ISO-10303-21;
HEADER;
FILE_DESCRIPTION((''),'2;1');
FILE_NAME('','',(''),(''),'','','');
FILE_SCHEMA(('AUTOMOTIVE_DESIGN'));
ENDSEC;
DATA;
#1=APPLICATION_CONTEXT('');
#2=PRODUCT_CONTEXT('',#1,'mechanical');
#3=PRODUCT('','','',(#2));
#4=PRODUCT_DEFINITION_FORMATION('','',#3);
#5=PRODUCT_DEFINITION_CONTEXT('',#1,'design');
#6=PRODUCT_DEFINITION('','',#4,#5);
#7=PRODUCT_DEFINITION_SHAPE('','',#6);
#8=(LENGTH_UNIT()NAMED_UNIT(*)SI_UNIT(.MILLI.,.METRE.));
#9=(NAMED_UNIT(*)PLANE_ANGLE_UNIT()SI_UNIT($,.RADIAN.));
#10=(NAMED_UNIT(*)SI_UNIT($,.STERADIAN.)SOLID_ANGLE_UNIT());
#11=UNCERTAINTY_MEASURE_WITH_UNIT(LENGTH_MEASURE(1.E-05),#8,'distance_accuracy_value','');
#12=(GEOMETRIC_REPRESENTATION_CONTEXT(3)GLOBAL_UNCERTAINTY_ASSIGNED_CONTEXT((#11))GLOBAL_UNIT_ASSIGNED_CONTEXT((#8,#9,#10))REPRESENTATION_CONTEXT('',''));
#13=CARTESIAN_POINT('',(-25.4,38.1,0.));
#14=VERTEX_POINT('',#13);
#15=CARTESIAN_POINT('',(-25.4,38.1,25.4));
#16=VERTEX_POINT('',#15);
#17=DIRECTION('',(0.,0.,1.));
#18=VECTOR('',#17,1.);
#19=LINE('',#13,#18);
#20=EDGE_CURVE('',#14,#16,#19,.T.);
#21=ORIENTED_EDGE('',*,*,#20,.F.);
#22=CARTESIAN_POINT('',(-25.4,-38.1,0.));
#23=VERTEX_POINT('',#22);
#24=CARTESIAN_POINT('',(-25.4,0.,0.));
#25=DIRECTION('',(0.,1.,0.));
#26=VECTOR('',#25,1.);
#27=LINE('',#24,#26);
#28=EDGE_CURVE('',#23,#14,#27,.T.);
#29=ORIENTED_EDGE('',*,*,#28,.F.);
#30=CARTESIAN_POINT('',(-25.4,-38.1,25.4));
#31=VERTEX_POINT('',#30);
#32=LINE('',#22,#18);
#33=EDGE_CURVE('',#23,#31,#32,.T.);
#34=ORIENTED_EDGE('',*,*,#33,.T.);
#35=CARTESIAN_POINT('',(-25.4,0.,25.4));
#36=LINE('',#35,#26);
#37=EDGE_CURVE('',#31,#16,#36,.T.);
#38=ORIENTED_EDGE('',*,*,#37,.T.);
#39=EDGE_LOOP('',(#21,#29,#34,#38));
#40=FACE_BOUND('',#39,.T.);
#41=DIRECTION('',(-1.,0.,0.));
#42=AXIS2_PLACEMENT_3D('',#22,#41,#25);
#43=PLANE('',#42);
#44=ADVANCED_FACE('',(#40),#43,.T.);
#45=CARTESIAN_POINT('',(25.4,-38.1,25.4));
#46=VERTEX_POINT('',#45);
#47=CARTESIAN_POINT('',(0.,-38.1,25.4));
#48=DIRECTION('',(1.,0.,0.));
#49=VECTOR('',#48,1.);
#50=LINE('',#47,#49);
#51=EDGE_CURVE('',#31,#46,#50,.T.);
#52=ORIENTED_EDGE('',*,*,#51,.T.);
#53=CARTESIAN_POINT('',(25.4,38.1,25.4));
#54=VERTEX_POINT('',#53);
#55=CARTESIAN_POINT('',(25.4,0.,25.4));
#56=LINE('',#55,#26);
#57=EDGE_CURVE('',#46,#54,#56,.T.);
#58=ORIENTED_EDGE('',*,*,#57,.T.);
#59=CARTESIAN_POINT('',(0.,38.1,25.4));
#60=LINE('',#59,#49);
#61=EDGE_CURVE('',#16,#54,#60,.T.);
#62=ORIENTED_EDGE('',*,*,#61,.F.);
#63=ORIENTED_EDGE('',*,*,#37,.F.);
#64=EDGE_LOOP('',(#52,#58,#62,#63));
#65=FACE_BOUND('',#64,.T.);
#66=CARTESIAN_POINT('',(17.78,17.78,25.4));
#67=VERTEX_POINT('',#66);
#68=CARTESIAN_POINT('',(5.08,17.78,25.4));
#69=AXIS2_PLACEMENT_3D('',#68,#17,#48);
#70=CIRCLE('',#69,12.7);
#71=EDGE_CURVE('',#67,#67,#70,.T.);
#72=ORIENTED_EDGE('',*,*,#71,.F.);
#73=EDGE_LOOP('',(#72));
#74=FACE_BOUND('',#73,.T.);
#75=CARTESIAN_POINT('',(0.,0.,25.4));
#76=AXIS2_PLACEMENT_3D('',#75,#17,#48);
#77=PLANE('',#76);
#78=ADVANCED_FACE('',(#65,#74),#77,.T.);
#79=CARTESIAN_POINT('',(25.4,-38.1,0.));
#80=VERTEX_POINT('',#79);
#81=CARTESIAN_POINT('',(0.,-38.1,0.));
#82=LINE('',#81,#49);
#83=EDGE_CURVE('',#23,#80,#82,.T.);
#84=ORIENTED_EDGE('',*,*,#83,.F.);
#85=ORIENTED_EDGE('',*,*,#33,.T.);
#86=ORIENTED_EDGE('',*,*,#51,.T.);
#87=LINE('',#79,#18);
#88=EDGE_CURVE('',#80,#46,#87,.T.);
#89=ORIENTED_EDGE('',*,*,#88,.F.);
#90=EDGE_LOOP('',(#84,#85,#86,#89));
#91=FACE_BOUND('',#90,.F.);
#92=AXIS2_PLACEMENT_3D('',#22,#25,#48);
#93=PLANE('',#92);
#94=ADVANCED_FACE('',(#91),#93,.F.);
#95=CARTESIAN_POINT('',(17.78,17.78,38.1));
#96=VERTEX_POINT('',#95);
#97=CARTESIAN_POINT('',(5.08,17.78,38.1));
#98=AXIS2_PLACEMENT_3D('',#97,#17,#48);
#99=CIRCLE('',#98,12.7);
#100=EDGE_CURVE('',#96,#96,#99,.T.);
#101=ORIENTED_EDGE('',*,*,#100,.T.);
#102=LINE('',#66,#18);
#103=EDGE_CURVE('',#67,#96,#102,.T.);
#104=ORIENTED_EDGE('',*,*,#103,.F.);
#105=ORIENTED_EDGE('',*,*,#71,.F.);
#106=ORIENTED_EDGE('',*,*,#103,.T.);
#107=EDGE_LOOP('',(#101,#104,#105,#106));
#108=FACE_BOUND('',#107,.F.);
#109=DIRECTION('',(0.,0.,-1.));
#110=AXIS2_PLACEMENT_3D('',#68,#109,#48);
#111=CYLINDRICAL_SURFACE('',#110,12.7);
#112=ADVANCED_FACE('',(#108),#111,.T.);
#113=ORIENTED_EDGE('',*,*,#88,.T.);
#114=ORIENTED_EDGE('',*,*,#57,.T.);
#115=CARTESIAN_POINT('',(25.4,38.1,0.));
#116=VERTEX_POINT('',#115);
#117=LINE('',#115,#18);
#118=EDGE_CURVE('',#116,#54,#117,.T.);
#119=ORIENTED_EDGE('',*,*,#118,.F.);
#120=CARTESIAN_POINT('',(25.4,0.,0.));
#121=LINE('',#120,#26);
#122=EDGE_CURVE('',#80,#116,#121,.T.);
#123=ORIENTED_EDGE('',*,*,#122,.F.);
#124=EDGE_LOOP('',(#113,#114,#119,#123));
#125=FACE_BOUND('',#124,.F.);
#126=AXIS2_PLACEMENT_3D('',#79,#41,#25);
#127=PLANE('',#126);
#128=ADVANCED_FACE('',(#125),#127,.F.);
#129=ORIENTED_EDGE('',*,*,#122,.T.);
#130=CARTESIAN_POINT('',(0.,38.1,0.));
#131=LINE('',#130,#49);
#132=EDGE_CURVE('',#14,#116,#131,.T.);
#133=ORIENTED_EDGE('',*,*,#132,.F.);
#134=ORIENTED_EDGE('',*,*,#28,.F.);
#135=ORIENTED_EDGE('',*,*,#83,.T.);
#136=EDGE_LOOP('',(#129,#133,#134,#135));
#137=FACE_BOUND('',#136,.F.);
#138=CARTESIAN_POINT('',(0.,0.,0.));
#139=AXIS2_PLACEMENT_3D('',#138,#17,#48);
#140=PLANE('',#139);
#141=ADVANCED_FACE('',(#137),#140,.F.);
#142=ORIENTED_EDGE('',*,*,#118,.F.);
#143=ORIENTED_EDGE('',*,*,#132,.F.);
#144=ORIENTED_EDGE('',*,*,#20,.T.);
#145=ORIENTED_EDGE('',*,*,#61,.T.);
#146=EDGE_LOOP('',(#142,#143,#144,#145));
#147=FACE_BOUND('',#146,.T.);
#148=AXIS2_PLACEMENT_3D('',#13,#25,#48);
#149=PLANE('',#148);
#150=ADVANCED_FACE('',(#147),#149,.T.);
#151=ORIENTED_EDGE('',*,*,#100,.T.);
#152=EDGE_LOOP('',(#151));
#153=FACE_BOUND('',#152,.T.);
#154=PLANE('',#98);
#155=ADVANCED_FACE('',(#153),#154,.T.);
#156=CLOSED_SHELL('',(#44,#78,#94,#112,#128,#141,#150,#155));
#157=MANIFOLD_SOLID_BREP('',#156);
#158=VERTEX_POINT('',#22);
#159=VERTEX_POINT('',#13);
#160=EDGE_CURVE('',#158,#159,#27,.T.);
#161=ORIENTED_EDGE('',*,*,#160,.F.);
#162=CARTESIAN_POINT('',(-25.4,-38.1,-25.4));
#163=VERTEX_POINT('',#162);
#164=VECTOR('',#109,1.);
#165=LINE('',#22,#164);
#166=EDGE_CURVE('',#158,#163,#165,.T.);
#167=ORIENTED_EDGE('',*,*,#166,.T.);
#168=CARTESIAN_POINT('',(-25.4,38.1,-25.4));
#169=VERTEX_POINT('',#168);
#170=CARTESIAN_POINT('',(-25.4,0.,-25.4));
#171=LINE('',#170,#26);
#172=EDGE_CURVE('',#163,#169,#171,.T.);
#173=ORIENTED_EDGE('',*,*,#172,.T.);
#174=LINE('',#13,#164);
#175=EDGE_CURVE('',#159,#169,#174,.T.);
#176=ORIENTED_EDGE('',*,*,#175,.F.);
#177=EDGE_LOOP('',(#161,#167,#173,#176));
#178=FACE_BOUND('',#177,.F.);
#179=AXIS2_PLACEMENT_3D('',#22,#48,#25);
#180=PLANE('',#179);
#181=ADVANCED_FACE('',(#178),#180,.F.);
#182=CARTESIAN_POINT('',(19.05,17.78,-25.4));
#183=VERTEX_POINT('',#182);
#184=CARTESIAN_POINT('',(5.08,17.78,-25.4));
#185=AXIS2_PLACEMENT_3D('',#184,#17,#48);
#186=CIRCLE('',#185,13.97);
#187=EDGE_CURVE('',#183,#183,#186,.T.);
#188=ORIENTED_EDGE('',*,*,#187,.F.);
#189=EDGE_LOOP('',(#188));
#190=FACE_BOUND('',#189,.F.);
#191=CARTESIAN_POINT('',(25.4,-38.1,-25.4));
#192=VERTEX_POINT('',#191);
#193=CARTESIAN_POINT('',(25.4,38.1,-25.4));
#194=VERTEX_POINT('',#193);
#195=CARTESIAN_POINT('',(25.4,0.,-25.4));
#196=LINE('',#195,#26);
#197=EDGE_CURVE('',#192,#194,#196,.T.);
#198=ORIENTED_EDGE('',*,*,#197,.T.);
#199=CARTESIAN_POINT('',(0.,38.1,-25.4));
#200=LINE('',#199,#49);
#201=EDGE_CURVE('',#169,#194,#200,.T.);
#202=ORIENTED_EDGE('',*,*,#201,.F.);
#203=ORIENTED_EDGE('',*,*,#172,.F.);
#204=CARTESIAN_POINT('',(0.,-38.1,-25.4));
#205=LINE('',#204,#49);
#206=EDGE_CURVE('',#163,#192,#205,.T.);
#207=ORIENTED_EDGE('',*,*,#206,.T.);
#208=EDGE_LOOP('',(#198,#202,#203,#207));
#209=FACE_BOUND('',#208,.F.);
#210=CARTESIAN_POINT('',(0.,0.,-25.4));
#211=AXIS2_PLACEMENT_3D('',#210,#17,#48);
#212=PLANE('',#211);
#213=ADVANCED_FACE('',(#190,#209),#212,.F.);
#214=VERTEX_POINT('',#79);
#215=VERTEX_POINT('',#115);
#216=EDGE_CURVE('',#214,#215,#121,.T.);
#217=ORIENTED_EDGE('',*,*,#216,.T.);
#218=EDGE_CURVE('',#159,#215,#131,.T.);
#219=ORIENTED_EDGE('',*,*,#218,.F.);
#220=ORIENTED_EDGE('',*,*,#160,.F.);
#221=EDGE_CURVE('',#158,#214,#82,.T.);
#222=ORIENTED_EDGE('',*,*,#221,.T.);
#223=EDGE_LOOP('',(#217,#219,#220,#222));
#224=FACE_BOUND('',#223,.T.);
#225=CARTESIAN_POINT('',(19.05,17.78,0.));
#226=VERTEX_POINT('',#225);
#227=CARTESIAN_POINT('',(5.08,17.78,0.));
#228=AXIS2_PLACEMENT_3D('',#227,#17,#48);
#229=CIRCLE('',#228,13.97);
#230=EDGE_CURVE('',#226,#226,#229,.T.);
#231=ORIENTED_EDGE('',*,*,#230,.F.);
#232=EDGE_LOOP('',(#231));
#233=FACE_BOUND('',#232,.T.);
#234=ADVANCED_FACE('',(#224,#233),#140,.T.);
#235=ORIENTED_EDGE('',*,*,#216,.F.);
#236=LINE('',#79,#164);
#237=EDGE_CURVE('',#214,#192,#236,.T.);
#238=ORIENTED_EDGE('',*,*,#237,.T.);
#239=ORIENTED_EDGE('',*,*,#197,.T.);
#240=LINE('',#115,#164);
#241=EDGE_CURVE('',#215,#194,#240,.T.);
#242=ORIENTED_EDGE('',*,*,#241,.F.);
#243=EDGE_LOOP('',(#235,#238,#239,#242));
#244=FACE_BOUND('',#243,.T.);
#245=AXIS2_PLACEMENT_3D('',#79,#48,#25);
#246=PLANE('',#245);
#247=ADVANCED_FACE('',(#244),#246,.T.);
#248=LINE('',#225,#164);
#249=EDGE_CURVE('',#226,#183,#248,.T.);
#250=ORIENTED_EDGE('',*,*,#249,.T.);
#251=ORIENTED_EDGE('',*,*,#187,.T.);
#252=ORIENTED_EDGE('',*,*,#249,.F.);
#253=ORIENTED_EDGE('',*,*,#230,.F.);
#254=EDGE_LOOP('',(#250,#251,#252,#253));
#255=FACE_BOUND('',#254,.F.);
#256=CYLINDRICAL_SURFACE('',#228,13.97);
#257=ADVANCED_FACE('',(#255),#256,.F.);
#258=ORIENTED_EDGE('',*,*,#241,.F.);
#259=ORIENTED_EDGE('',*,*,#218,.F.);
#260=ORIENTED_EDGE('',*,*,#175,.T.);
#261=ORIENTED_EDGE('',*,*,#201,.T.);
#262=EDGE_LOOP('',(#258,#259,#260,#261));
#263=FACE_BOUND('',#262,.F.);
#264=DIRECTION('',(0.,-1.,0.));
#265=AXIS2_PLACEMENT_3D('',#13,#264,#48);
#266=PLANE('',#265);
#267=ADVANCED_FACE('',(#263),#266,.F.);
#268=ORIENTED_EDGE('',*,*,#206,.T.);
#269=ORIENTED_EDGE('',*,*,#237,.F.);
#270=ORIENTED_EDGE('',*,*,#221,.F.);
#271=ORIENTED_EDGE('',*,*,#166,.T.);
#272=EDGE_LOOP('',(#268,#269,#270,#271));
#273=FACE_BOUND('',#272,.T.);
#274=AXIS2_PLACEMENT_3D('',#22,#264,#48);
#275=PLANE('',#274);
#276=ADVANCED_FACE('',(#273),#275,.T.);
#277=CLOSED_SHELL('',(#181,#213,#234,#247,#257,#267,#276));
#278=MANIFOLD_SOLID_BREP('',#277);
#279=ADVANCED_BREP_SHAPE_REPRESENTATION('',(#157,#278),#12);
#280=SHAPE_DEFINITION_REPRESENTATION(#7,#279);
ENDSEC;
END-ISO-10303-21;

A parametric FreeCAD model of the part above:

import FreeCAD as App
import Part
import Sketcher

V = App.Vector
Q = App.Units.Quantity

doc = App.newDocument("Part")
body = doc.addObject("PartDesign::Body", "Body")

# Sketch on XY plane
sketch1 = body.newObject("Sketcher::SketchObject", "Sketch")
sketch1.AttachmentSupport = (doc.getObject("XY_Plane"), [""])
sketch1.MapMode = "FlatFace"
sketch1.addGeometry(Part.LineSegment(V(-25, 38, 0), V(-25, -38, 0)), False)
sketch1.addGeometry(Part.LineSegment(V(-25, -38, 0), V(25, -38, 0)), False)
sketch1.addGeometry(Part.LineSegment(V(25, -38, 0), V(25, 38, 0)), False)
sketch1.addGeometry(Part.LineSegment(V(25, 38, 0), V(-25, 38, 0)), False)
sketch1.addConstraint(Sketcher.Constraint("Coincident", 0, 2, 1, 1))
sketch1.addConstraint(Sketcher.Constraint("Coincident", 1, 2, 2, 1))
sketch1.addConstraint(Sketcher.Constraint("Coincident", 2, 2, 3, 1))
sketch1.addConstraint(Sketcher.Constraint("Coincident", 3, 2, 0, 1))
sketch1.addConstraint(Sketcher.Constraint("Vertical", 0))
sketch1.addConstraint(Sketcher.Constraint("Horizontal", 1))
sketch1.addConstraint(Sketcher.Constraint("Vertical", 2))
sketch1.addConstraint(Sketcher.Constraint("Horizontal", 3))
sketch1.addConstraint(Sketcher.Constraint("Symmetric", 0, 2, 2, 2, -1, 1))
sketch1.addConstraint(Sketcher.Constraint("DistanceX", 1, 1, 1, 2, Q("2 in")))
sketch1.addConstraint(Sketcher.Constraint("DistanceY", 0, 2, 0, 1, Q("3 in")))
pad1 = body.newObject("PartDesign::Pad", "Pad")
pad1.Profile = sketch1
pad1.Length = Q("1 in")

# Sketch on XY plane
sketch2 = body.newObject("Sketcher::SketchObject", "Sketch001")
sketch2.AttachmentSupport = (doc.getObject("XY_Plane"), [""])
sketch2.MapMode = "FlatFace"
sketch2.AttachmentOffset = App.Placement(V(0, 0, 1 * 25.4), App.Rotation())
sketch2.addGeometry(Part.Circle(V(5, 18, 0), V(0, 0, 1), 13), False)
sketch2.addConstraint(Sketcher.Constraint("Diameter", 0, Q("1 in")))
sketch2.addConstraint(Sketcher.Constraint("DistanceX", -1, 1, 0, 3, Q("0.2 in")))
sketch2.addConstraint(Sketcher.Constraint("DistanceY", -1, 1, 0, 3, Q("0.7 in")))
pad2 = body.newObject("PartDesign::Pad", "Pad001")
pad2.Profile = sketch2
pad2.Length = Q("0.5 in")
body2 = doc.addObject("PartDesign::Body", "Body001")

# Sketch on XY plane
sketch3 = body2.newObject("Sketcher::SketchObject", "Sketch002")
sketch3.AttachmentSupport = (doc.getObject("XY_Plane001"), [""])
sketch3.MapMode = "FlatFace"
sketch3.addGeometry(Part.LineSegment(V(-25, 38, 0), V(-25, -38, 0)), False)
sketch3.addGeometry(Part.LineSegment(V(-25, -38, 0), V(25, -38, 0)), False)
sketch3.addGeometry(Part.LineSegment(V(25, -38, 0), V(25, 38, 0)), False)
sketch3.addGeometry(Part.LineSegment(V(25, 38, 0), V(-25, 38, 0)), False)
sketch3.addGeometry(Part.Circle(V(5, 18, 0), V(0, 0, 1), 14), False)
sketch3.addConstraint(Sketcher.Constraint("Coincident", 0, 2, 1, 1))
sketch3.addConstraint(Sketcher.Constraint("Coincident", 1, 2, 2, 1))
sketch3.addConstraint(Sketcher.Constraint("Coincident", 2, 2, 3, 1))
sketch3.addConstraint(Sketcher.Constraint("Coincident", 3, 2, 0, 1))
sketch3.addConstraint(Sketcher.Constraint("Vertical", 0))
sketch3.addConstraint(Sketcher.Constraint("Horizontal", 1))
sketch3.addConstraint(Sketcher.Constraint("Vertical", 2))
sketch3.addConstraint(Sketcher.Constraint("Horizontal", 3))
sketch3.addConstraint(Sketcher.Constraint("Symmetric", 0, 2, 2, 2, -1, 1))
sketch3.addConstraint(Sketcher.Constraint("Diameter", 4, Q("1.1 in")))
sketch3.addConstraint(Sketcher.Constraint("DistanceX", 1, 1, 1, 2, Q("2 in")))
sketch3.addConstraint(Sketcher.Constraint("DistanceY", 0, 2, 0, 1, Q("3 in")))
sketch3.addConstraint(Sketcher.Constraint("DistanceX", -1, 1, 4, 3, Q("0.2 in")))
sketch3.addConstraint(Sketcher.Constraint("DistanceY", -1, 1, 4, 3, Q("0.7 in")))
pad3 = body2.newObject("PartDesign::Pad", "Pad002")
pad3.Profile = sketch3
pad3.Length = Q("1 in")
pad3.Reversed = True

doc.recompute()
